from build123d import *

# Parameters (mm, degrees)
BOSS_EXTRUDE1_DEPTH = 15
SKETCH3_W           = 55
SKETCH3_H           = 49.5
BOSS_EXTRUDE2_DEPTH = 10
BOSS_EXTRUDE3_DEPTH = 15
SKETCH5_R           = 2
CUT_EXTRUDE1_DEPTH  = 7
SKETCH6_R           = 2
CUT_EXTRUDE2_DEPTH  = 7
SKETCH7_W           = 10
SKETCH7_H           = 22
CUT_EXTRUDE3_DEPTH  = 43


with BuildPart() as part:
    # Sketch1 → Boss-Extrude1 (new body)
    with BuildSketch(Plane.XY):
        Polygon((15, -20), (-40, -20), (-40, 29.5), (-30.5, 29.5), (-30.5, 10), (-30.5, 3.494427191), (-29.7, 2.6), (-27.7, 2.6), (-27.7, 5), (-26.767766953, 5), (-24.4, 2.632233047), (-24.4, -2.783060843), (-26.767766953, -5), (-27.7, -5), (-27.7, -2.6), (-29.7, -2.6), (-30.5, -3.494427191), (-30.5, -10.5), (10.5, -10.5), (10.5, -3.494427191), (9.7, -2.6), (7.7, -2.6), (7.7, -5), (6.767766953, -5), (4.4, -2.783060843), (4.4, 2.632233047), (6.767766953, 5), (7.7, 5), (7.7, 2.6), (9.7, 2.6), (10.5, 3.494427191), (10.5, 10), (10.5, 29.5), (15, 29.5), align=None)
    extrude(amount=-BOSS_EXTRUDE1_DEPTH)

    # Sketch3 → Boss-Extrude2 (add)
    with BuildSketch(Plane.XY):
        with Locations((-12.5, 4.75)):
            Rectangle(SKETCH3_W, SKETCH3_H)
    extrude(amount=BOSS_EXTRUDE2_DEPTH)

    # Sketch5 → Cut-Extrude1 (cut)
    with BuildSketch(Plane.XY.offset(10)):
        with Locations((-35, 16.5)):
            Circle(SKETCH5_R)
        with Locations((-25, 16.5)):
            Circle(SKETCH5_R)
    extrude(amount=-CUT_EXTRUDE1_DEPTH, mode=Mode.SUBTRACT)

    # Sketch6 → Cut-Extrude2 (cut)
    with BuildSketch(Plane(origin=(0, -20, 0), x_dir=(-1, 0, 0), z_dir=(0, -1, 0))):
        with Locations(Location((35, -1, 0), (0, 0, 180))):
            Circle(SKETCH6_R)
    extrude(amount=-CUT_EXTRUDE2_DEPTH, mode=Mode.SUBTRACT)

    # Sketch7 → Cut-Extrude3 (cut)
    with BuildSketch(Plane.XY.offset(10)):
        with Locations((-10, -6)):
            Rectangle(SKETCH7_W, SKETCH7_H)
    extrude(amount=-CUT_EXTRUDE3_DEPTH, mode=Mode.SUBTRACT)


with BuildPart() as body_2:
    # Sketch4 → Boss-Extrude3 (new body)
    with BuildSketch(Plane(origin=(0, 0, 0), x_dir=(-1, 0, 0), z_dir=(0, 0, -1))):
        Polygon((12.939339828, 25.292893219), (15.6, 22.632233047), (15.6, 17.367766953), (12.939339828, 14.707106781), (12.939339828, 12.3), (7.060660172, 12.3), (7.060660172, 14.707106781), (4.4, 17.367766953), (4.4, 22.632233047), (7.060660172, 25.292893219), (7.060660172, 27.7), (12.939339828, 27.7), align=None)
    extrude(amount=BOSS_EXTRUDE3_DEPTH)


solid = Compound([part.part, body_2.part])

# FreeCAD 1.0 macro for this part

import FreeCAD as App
import Part
import Sketcher
from FreeCAD import Vector


def add_polygon(sketch, points):
    """Adds a closed chain of lines whose ends are joined by coincident constraints."""
    first, n = sketch.GeometryCount, len(points)
    for a, b in zip(points, points[1:] + points[:1]):
        sketch.addGeometry(Part.LineSegment(App.Vector(*a, 0), App.Vector(*b, 0)), False)
    for i in range(n):
        sketch.addConstraint(Sketcher.Constraint("Coincident", first + i, 2, first + (i + 1) % n, 1))

doc = App.newDocument("Part")
params = doc.addObject("Spreadsheet::Sheet", "Params")
for row, (alias, value) in enumerate([
    ("sketch1_width", "55 mm"),
    ("sketch1_width2", "2 mm"),
    ("sketch1_width3", "41 mm"),
    ("sketch1_width4", "4.5 mm"),
    ("sketch1_height", "49.5 mm"),
    ("pad1_length", "15 mm"),
    ("sketch2_width", "55 mm"),
    ("sketch2_height", "49.5 mm"),
    ("pad2_length", "10 mm"),
    ("sketch3_diameter", "4 mm"),
    ("pocket1_length", "7 mm"),
    ("sketch4_diameter", "4 mm"),
    ("pocket2_length", "7 mm"),
    ("sketch5_width", "10 mm"),
    ("sketch5_height", "22 mm"),
    ("pocket3_length", "43 mm"),
    ("pad3_length", "15 mm"),
], start=1):
    params.set(f"A{row}", alias)
    params.set(f"B{row}", "=" + value)
    params.setAlias(f"B{row}", alias)

body = doc.addObject("PartDesign::Body", "Body")

# Sketch on XY plane
sketch1 = doc.addObject("Sketcher::SketchObject", "Sketch")
body.addObject(sketch1)
sketch1.AttachmentSupport = (doc.XY_Plane, [""])
sketch1.MapMode = "FlatFace"
add_polygon(sketch1, [(-40, -20), (15, -20), (15, 29.5), (10.5, 29.5), (10.5, 3.5), (9.7, 2.6), (7.7, 2.6), (7.7, 5), (6.8, 5), (4.4, 2.6), (4.4, -2.8), (6.8, -5), (7.7, -5), (7.7, -2.6), (9.7, -2.6), (10.5, -3.5), (10.5, -10.5), (-30.5, -10.5), (-30.5, -3.5), (-29.7, -2.6), (-27.7, -2.6), (-27.7, -5), (-26.8, -5), (-24.4, -2.8), (-24.4, 2.6), (-26.8, 5), (-27.7, 5), (-27.7, 2.6), (-29.7, 2.6), (-30.5, 3.5), (-30.5, 29.5), (-40, 29.5)])  # lines 0-31
sketch1.addConstraint(Sketcher.Constraint("Horizontal", 0))
sketch1.addConstraint(Sketcher.Constraint("Vertical", 1))
sketch1.addConstraint(Sketcher.Constraint("Horizontal", 2))
sketch1.addConstraint(Sketcher.Constraint("Vertical", 3))
sketch1.addConstraint(Sketcher.Constraint("Horizontal", 5))
sketch1.addConstraint(Sketcher.Constraint("Vertical", 6))
sketch1.addConstraint(Sketcher.Constraint("Horizontal", 7))
sketch1.addConstraint(Sketcher.Constraint("Vertical", 9))
sketch1.addConstraint(Sketcher.Constraint("Horizontal", 11))
sketch1.addConstraint(Sketcher.Constraint("Vertical", 12))
sketch1.addConstraint(Sketcher.Constraint("Horizontal", 13))
sketch1.addConstraint(Sketcher.Constraint("Vertical", 15))
sketch1.addConstraint(Sketcher.Constraint("Horizontal", 16))
sketch1.addConstraint(Sketcher.Constraint("Vertical", 17))
sketch1.addConstraint(Sketcher.Constraint("Horizontal", 19))
sketch1.addConstraint(Sketcher.Constraint("Vertical", 20))
sketch1.addConstraint(Sketcher.Constraint("Horizontal", 21))
sketch1.addConstraint(Sketcher.Constraint("Vertical", 23))
sketch1.addConstraint(Sketcher.Constraint("Horizontal", 25))
sketch1.addConstraint(Sketcher.Constraint("Vertical", 26))
sketch1.addConstraint(Sketcher.Constraint("Horizontal", 27))
sketch1.addConstraint(Sketcher.Constraint("Vertical", 29))
sketch1.addConstraint(Sketcher.Constraint("Horizontal", 30))
sketch1.addConstraint(Sketcher.Constraint("Vertical", 31))
sketch1.addConstraint(Sketcher.Constraint("Symmetric", 7, 2, 10, 2, -1))
sketch1.addConstraint(Sketcher.Constraint("Symmetric", 5, 2, 12, 2, -1))
sketch1.addConstraint(Sketcher.Constraint("Symmetric", 3, 2, 14, 2, -1))
sketch1.addConstraint(Sketcher.Constraint("Symmetric", 21, 2, 24, 2, -1))
sketch1.addConstraint(Sketcher.Constraint("Symmetric", 19, 2, 26, 2, -1))
sketch1.addConstraint(Sketcher.Constraint("Symmetric", 17, 2, 28, 2, -1))
sketch1.addConstraint(Sketcher.Constraint("Parallel", 4, 18))
sketch1.addConstraint(Sketcher.Constraint("Perpendicular", 8, 24))
sketch1.addConstraint(Sketcher.Constraint("Parallel", 14, 28))
sketch1.addConstraint(Sketcher.Constraint("Horizontal", 14, 2, 17, 2))
sketch1.addConstraint(Sketcher.Constraint("Horizontal", 13, 2, 18, 2))
sketch1.addConstraint(Sketcher.Constraint("Horizontal", 11, 2, 20, 2))
sketch1.addConstraint(Sketcher.Constraint("Horizontal", 9, 2, 22, 2))
sketch1.addConstraint(Sketcher.Constraint("Horizontal", 8, 2, 23, 2))
sketch1.addConstraint(Sketcher.Constraint("Horizontal", 2, 2, 29, 2))
sketch1.addConstraint(Sketcher.Constraint("Vertical", 4, 2, 13, 2))
sketch1.addConstraint(Sketcher.Constraint("Equal", 13, 19))
sketch1.addConstraint(Sketcher.Constraint("Equal", 11, 21))
sketch1.addConstraint(Sketcher.Constraint("Equal", 10, 22))
sketch1.addConstraint(Sketcher.Constraint("DistanceX", 0, 1, 0, 2, 55.0))
sketch1.addConstraint(Sketcher.Constraint("DistanceX", 5, 2, 5, 1, 2.0))
sketch1.addConstraint(Sketcher.Constraint("DistanceX", 16, 2, 16, 1, 41.0))
sketch1.addConstraint(Sketcher.Constraint("DistanceX", 2, 2, 2, 1, 4.5))
sketch1.addConstraint(Sketcher.Constraint("DistanceY", 1, 1, 1, 2, 49.5))
sketch1.addConstraint(Sketcher.Constraint("DistanceY", 6, 1, 6, 2, 2.4))
sketch1.addConstraint(Sketcher.Constraint("DistanceX", -1, 1, 0, 2, 15.0))
sketch1.addConstraint(Sketcher.Constraint("DistanceY", 0, 2, -1, 1, 20.0))
sketch1.addConstraint(Sketcher.Constraint("DistanceY", -1, 1, 6, 2, 5.0))
sketch1.addConstraint(Sketcher.Constraint("Distance", 4, 1.2))
sketch1.addConstraint(Sketcher.Constraint("DistanceX", -1, 1, 4, 2, 9.7))
sketch1.addConstraint(Sketcher.Constraint("DistanceX", -1, 1, 8, 2, 4.4))
sketch1.addConstraint(Sketcher.Constraint("DistanceY", 15, 2, -1, 1, 10.5))
sketch1.addConstraint(Sketcher.Constraint("Distance", 8, 3.348528))
sketch1.addConstraint(Sketcher.Constraint("Distance", 10, 3.243631))
sketch1.setExpression("Constraints[75]", "Params.sketch1_width")
sketch1.setExpression("Constraints[76]", "Params.sketch1_width2")
sketch1.setExpression("Constraints[77]", "Params.sketch1_width3")
sketch1.setExpression("Constraints[78]", "Params.sketch1_width4")
sketch1.setExpression("Constraints[79]", "Params.sketch1_height")
pad1 = doc.addObject("PartDesign::Pad", "Pad")
body.addObject(pad1)
pad1.Profile = sketch1
pad1.setExpression("Length", "Params.pad1_length")
pad1.Reversed = True

# Sketch on XY plane
sketch2 = doc.addObject("Sketcher::SketchObject", "Sketch001")
body.addObject(sketch2)
sketch2.AttachmentSupport = (doc.XY_Plane, [""])
sketch2.MapMode = "FlatFace"
add_polygon(sketch2, [(-40, 30), (-40, -20), (15, -20), (15, 30)])  # lines 0-3
sketch2.addConstraint(Sketcher.Constraint("Vertical", 0))
sketch2.addConstraint(Sketcher.Constraint("Horizontal", 1))
sketch2.addConstraint(Sketcher.Constraint("Vertical", 2))
sketch2.addConstraint(Sketcher.Constraint("Horizontal", 3))
sketch2.addConstraint(Sketcher.Constraint("DistanceX", 1, 1, 1, 2, 55.0))
sketch2.addConstraint(Sketcher.Constraint("DistanceY", 0, 2, 0, 1, 49.5))
sketch2.addConstraint(Sketcher.Constraint("DistanceX", 0, 2, -1, 1, 40.0))
sketch2.addConstraint(Sketcher.Constraint("DistanceY", 0, 2, -1, 1, 20.0))
sketch2.setExpression("Constraints[8]", "Params.sketch2_width")
sketch2.setExpression("Constraints[9]", "Params.sketch2_height")
pad2 = doc.addObject("PartDesign::Pad", "Pad001")
body.addObject(pad2)
pad2.Profile = sketch2
pad2.setExpression("Length", "Params.pad2_length")

# Sketch on XY plane
sketch3 = doc.addObject("Sketcher::SketchObject", "Sketch002")
body.addObject(sketch3)
sketch3.AttachmentSupport = (doc.XY_Plane, [""])
sketch3.MapMode = "FlatFace"
sketch3.AttachmentOffset = App.Placement(Vector(0, 0, 10), App.Rotation())
sketch3.addGeometry(Part.Circle(Vector(-35, 16.5, 0), Vector(0, 0, 1), 2), False)
sketch3.addGeometry(Part.Circle(Vector(-25, 16.5, 0), Vector(0, 0, 1), 2), False)
sketch3.addConstraint(Sketcher.Constraint("Equal", 0, 1))
sketch3.addConstraint(Sketcher.Constraint("Horizontal", 0, 3, 1, 3))
sketch3.addConstraint(Sketcher.Constraint("Diameter", 0, 4.0))
sketch3.addConstraint(Sketcher.Constraint("DistanceX", 0, 3, -1, 1, 35.0))
sketch3.addConstraint(Sketcher.Constraint("DistanceX", 1, 3, -1, 1, 25.0))
sketch3.addConstraint(Sketcher.Constraint("DistanceY", -1, 1, 0, 3, 16.5))
sketch3.setExpression("Constraints[2]", "Params.sketch3_diameter")
pocket1 = doc.addObject("PartDesign::Pocket", "Pocket")
body.addObject(pocket1)
pocket1.Profile = sketch3
pocket1.setExpression("Length", "Params.pocket1_length")

# Sketch on XZ plane
sketch4 = doc.addObject("Sketcher::SketchObject", "Sketch003")
body.addObject(sketch4)
sketch4.AttachmentSupport = (doc.XZ_Plane, [""])
sketch4.MapMode = "FlatFace"
sketch4.AttachmentOffset = App.Placement(Vector(0, 0, 20), App.Rotation())
sketch4.addGeometry(Part.Circle(Vector(-35, 1, 0), Vector(0, 0, 1), 2), False)
sketch4.addConstraint(Sketcher.Constraint("Diameter", 0, 4.0))
sketch4.addConstraint(Sketcher.Constraint("DistanceX", 0, 3, -1, 1, 35.0))
sketch4.addConstraint(Sketcher.Constraint("DistanceY", -1, 1, 0, 3, 1.0))
sketch4.setExpression("Constraints[0]", "Params.sketch4_diameter")
pocket2 = doc.addObject("PartDesign::Pocket", "Pocket001")
body.addObject(pocket2)
pocket2.Profile = sketch4
pocket2.setExpression("Length", "Params.pocket2_length")

# Sketch on XY plane
sketch5 = doc.addObject("Sketcher::SketchObject", "Sketch004")
body.addObject(sketch5)
sketch5.AttachmentSupport = (doc.XY_Plane, [""])
sketch5.MapMode = "FlatFace"
sketch5.AttachmentOffset = App.Placement(Vector(0, 0, 10), App.Rotation())
add_polygon(sketch5, [(-15, 5), (-15, -17), (-5, -17), (-5, 5)])  # lines 0-3
sketch5.addConstraint(Sketcher.Constraint("Vertical", 0))
sketch5.addConstraint(Sketcher.Constraint("Horizontal", 1))
sketch5.addConstraint(Sketcher.Constraint("Vertical", 2))
sketch5.addConstraint(Sketcher.Constraint("Horizontal", 3))
sketch5.addConstraint(Sketcher.Constraint("DistanceX", 1, 1, 1, 2, 10.0))
sketch5.addConstraint(Sketcher.Constraint("DistanceY", 0, 2, 0, 1, 22.0))
sketch5.addConstraint(Sketcher.Constraint("DistanceX", 0, 2, -1, 1, 15.0))
sketch5.addConstraint(Sketcher.Constraint("DistanceY", 0, 2, -1, 1, 17.0))
sketch5.setExpression("Constraints[8]", "Params.sketch5_width")
sketch5.setExpression("Constraints[9]", "Params.sketch5_height")
pocket3 = doc.addObject("PartDesign::Pocket", "Pocket002")
body.addObject(pocket3)
pocket3.Profile = sketch5
pocket3.setExpression("Length", "Params.pocket3_length")
body2 = doc.addObject("PartDesign::Body", "Body001")

# Sketch on XY plane
sketch6 = doc.addObject("Sketcher::SketchObject", "Sketch005")
body2.addObject(sketch6)
sketch6.AttachmentSupport = (doc.getObject("XY_Plane001"), [""])
sketch6.MapMode = "FlatFace"
add_polygon(sketch6, [(-15.6, 22.6), (-12.9, 25.3), (-12.9, 27.7), (-7.1, 27.7), (-7.1, 25.3), (-4.4, 22.6), (-4.4, 17.4), (-7.1, 14.7), (-7.1, 12.3), (-12.9, 12.3), (-12.9, 14.7), (-15.6, 17.4)])  # lines 0-11
sketch6.addConstraint(Sketcher.Constraint("Vertical", 1))
sketch6.addConstraint(Sketcher.Constraint("Horizontal", 2))
sketch6.addConstraint(Sketcher.Constraint("Vertical", 3))
sketch6.addConstraint(Sketcher.Constraint("Vertical", 5))
sketch6.addConstraint(Sketcher.Constraint("Vertical", 7))
sketch6.addConstraint(Sketcher.Constraint("Horizontal", 8))
sketch6.addConstraint(Sketcher.Constraint("Vertical", 9))
sketch6.addConstraint(Sketcher.Constraint("Vertical", 11))
sketch6.addConstraint(Sketcher.Constraint("Perpendicular", 0, 4))
sketch6.addConstraint(Sketcher.Constraint("Perpendicular", 4, 6))
sketch6.addConstraint(Sketcher.Constraint("Perpendicular", 6, 10))
sketch6.addConstraint(Sketcher.Constraint("Horizontal", 0, 2, 3, 2))
sketch6.addConstraint(Sketcher.Constraint("Horizontal", 6, 2, 9, 2))
sketch6.addConstraint(Sketcher.Constraint("Horizontal", 5, 2, 10, 2))
sketch6.addConstraint(Sketcher.Constraint("Horizontal", 4, 2, 11, 2))
sketch6.addConstraint(Sketcher.Constraint("Vertical", 3, 2, 6, 2))
sketch6.addConstraint(Sketcher.Constraint("Vertical", 1, 2, 8, 2))
sketch6.addConstraint(Sketcher.Constraint("Equal", 3, 7))
sketch6.addConstraint(Sketcher.Constraint("DistanceY", -1, 1, 1, 2, 27.7))
sketch6.addConstraint(Sketcher.Constraint("DistanceX", 4, 2, -1, 1, 4.4))
sketch6.addConstraint(Sketcher.Constraint("DistanceY", -1, 1, 7, 2, 12.3))
sketch6.addConstraint(Sketcher.Constraint("DistanceX", 10, 2, -1, 1, 15.6))
sketch6.addConstraint(Sketcher.Constraint("DistanceX", 2, 1, 2, 2, 5.87868))
sketch6.addConstraint(Sketcher.Constraint("DistanceY", 1, 1, 1, 2, 2.407107))
pad3 = doc.addObject("PartDesign::Pad", "Pad002")
body2.addObject(pad3)
pad3.Profile = sketch6
pad3.setExpression("Length", "Params.pad3_length")
pad3.Reversed = True

doc.recompute()
